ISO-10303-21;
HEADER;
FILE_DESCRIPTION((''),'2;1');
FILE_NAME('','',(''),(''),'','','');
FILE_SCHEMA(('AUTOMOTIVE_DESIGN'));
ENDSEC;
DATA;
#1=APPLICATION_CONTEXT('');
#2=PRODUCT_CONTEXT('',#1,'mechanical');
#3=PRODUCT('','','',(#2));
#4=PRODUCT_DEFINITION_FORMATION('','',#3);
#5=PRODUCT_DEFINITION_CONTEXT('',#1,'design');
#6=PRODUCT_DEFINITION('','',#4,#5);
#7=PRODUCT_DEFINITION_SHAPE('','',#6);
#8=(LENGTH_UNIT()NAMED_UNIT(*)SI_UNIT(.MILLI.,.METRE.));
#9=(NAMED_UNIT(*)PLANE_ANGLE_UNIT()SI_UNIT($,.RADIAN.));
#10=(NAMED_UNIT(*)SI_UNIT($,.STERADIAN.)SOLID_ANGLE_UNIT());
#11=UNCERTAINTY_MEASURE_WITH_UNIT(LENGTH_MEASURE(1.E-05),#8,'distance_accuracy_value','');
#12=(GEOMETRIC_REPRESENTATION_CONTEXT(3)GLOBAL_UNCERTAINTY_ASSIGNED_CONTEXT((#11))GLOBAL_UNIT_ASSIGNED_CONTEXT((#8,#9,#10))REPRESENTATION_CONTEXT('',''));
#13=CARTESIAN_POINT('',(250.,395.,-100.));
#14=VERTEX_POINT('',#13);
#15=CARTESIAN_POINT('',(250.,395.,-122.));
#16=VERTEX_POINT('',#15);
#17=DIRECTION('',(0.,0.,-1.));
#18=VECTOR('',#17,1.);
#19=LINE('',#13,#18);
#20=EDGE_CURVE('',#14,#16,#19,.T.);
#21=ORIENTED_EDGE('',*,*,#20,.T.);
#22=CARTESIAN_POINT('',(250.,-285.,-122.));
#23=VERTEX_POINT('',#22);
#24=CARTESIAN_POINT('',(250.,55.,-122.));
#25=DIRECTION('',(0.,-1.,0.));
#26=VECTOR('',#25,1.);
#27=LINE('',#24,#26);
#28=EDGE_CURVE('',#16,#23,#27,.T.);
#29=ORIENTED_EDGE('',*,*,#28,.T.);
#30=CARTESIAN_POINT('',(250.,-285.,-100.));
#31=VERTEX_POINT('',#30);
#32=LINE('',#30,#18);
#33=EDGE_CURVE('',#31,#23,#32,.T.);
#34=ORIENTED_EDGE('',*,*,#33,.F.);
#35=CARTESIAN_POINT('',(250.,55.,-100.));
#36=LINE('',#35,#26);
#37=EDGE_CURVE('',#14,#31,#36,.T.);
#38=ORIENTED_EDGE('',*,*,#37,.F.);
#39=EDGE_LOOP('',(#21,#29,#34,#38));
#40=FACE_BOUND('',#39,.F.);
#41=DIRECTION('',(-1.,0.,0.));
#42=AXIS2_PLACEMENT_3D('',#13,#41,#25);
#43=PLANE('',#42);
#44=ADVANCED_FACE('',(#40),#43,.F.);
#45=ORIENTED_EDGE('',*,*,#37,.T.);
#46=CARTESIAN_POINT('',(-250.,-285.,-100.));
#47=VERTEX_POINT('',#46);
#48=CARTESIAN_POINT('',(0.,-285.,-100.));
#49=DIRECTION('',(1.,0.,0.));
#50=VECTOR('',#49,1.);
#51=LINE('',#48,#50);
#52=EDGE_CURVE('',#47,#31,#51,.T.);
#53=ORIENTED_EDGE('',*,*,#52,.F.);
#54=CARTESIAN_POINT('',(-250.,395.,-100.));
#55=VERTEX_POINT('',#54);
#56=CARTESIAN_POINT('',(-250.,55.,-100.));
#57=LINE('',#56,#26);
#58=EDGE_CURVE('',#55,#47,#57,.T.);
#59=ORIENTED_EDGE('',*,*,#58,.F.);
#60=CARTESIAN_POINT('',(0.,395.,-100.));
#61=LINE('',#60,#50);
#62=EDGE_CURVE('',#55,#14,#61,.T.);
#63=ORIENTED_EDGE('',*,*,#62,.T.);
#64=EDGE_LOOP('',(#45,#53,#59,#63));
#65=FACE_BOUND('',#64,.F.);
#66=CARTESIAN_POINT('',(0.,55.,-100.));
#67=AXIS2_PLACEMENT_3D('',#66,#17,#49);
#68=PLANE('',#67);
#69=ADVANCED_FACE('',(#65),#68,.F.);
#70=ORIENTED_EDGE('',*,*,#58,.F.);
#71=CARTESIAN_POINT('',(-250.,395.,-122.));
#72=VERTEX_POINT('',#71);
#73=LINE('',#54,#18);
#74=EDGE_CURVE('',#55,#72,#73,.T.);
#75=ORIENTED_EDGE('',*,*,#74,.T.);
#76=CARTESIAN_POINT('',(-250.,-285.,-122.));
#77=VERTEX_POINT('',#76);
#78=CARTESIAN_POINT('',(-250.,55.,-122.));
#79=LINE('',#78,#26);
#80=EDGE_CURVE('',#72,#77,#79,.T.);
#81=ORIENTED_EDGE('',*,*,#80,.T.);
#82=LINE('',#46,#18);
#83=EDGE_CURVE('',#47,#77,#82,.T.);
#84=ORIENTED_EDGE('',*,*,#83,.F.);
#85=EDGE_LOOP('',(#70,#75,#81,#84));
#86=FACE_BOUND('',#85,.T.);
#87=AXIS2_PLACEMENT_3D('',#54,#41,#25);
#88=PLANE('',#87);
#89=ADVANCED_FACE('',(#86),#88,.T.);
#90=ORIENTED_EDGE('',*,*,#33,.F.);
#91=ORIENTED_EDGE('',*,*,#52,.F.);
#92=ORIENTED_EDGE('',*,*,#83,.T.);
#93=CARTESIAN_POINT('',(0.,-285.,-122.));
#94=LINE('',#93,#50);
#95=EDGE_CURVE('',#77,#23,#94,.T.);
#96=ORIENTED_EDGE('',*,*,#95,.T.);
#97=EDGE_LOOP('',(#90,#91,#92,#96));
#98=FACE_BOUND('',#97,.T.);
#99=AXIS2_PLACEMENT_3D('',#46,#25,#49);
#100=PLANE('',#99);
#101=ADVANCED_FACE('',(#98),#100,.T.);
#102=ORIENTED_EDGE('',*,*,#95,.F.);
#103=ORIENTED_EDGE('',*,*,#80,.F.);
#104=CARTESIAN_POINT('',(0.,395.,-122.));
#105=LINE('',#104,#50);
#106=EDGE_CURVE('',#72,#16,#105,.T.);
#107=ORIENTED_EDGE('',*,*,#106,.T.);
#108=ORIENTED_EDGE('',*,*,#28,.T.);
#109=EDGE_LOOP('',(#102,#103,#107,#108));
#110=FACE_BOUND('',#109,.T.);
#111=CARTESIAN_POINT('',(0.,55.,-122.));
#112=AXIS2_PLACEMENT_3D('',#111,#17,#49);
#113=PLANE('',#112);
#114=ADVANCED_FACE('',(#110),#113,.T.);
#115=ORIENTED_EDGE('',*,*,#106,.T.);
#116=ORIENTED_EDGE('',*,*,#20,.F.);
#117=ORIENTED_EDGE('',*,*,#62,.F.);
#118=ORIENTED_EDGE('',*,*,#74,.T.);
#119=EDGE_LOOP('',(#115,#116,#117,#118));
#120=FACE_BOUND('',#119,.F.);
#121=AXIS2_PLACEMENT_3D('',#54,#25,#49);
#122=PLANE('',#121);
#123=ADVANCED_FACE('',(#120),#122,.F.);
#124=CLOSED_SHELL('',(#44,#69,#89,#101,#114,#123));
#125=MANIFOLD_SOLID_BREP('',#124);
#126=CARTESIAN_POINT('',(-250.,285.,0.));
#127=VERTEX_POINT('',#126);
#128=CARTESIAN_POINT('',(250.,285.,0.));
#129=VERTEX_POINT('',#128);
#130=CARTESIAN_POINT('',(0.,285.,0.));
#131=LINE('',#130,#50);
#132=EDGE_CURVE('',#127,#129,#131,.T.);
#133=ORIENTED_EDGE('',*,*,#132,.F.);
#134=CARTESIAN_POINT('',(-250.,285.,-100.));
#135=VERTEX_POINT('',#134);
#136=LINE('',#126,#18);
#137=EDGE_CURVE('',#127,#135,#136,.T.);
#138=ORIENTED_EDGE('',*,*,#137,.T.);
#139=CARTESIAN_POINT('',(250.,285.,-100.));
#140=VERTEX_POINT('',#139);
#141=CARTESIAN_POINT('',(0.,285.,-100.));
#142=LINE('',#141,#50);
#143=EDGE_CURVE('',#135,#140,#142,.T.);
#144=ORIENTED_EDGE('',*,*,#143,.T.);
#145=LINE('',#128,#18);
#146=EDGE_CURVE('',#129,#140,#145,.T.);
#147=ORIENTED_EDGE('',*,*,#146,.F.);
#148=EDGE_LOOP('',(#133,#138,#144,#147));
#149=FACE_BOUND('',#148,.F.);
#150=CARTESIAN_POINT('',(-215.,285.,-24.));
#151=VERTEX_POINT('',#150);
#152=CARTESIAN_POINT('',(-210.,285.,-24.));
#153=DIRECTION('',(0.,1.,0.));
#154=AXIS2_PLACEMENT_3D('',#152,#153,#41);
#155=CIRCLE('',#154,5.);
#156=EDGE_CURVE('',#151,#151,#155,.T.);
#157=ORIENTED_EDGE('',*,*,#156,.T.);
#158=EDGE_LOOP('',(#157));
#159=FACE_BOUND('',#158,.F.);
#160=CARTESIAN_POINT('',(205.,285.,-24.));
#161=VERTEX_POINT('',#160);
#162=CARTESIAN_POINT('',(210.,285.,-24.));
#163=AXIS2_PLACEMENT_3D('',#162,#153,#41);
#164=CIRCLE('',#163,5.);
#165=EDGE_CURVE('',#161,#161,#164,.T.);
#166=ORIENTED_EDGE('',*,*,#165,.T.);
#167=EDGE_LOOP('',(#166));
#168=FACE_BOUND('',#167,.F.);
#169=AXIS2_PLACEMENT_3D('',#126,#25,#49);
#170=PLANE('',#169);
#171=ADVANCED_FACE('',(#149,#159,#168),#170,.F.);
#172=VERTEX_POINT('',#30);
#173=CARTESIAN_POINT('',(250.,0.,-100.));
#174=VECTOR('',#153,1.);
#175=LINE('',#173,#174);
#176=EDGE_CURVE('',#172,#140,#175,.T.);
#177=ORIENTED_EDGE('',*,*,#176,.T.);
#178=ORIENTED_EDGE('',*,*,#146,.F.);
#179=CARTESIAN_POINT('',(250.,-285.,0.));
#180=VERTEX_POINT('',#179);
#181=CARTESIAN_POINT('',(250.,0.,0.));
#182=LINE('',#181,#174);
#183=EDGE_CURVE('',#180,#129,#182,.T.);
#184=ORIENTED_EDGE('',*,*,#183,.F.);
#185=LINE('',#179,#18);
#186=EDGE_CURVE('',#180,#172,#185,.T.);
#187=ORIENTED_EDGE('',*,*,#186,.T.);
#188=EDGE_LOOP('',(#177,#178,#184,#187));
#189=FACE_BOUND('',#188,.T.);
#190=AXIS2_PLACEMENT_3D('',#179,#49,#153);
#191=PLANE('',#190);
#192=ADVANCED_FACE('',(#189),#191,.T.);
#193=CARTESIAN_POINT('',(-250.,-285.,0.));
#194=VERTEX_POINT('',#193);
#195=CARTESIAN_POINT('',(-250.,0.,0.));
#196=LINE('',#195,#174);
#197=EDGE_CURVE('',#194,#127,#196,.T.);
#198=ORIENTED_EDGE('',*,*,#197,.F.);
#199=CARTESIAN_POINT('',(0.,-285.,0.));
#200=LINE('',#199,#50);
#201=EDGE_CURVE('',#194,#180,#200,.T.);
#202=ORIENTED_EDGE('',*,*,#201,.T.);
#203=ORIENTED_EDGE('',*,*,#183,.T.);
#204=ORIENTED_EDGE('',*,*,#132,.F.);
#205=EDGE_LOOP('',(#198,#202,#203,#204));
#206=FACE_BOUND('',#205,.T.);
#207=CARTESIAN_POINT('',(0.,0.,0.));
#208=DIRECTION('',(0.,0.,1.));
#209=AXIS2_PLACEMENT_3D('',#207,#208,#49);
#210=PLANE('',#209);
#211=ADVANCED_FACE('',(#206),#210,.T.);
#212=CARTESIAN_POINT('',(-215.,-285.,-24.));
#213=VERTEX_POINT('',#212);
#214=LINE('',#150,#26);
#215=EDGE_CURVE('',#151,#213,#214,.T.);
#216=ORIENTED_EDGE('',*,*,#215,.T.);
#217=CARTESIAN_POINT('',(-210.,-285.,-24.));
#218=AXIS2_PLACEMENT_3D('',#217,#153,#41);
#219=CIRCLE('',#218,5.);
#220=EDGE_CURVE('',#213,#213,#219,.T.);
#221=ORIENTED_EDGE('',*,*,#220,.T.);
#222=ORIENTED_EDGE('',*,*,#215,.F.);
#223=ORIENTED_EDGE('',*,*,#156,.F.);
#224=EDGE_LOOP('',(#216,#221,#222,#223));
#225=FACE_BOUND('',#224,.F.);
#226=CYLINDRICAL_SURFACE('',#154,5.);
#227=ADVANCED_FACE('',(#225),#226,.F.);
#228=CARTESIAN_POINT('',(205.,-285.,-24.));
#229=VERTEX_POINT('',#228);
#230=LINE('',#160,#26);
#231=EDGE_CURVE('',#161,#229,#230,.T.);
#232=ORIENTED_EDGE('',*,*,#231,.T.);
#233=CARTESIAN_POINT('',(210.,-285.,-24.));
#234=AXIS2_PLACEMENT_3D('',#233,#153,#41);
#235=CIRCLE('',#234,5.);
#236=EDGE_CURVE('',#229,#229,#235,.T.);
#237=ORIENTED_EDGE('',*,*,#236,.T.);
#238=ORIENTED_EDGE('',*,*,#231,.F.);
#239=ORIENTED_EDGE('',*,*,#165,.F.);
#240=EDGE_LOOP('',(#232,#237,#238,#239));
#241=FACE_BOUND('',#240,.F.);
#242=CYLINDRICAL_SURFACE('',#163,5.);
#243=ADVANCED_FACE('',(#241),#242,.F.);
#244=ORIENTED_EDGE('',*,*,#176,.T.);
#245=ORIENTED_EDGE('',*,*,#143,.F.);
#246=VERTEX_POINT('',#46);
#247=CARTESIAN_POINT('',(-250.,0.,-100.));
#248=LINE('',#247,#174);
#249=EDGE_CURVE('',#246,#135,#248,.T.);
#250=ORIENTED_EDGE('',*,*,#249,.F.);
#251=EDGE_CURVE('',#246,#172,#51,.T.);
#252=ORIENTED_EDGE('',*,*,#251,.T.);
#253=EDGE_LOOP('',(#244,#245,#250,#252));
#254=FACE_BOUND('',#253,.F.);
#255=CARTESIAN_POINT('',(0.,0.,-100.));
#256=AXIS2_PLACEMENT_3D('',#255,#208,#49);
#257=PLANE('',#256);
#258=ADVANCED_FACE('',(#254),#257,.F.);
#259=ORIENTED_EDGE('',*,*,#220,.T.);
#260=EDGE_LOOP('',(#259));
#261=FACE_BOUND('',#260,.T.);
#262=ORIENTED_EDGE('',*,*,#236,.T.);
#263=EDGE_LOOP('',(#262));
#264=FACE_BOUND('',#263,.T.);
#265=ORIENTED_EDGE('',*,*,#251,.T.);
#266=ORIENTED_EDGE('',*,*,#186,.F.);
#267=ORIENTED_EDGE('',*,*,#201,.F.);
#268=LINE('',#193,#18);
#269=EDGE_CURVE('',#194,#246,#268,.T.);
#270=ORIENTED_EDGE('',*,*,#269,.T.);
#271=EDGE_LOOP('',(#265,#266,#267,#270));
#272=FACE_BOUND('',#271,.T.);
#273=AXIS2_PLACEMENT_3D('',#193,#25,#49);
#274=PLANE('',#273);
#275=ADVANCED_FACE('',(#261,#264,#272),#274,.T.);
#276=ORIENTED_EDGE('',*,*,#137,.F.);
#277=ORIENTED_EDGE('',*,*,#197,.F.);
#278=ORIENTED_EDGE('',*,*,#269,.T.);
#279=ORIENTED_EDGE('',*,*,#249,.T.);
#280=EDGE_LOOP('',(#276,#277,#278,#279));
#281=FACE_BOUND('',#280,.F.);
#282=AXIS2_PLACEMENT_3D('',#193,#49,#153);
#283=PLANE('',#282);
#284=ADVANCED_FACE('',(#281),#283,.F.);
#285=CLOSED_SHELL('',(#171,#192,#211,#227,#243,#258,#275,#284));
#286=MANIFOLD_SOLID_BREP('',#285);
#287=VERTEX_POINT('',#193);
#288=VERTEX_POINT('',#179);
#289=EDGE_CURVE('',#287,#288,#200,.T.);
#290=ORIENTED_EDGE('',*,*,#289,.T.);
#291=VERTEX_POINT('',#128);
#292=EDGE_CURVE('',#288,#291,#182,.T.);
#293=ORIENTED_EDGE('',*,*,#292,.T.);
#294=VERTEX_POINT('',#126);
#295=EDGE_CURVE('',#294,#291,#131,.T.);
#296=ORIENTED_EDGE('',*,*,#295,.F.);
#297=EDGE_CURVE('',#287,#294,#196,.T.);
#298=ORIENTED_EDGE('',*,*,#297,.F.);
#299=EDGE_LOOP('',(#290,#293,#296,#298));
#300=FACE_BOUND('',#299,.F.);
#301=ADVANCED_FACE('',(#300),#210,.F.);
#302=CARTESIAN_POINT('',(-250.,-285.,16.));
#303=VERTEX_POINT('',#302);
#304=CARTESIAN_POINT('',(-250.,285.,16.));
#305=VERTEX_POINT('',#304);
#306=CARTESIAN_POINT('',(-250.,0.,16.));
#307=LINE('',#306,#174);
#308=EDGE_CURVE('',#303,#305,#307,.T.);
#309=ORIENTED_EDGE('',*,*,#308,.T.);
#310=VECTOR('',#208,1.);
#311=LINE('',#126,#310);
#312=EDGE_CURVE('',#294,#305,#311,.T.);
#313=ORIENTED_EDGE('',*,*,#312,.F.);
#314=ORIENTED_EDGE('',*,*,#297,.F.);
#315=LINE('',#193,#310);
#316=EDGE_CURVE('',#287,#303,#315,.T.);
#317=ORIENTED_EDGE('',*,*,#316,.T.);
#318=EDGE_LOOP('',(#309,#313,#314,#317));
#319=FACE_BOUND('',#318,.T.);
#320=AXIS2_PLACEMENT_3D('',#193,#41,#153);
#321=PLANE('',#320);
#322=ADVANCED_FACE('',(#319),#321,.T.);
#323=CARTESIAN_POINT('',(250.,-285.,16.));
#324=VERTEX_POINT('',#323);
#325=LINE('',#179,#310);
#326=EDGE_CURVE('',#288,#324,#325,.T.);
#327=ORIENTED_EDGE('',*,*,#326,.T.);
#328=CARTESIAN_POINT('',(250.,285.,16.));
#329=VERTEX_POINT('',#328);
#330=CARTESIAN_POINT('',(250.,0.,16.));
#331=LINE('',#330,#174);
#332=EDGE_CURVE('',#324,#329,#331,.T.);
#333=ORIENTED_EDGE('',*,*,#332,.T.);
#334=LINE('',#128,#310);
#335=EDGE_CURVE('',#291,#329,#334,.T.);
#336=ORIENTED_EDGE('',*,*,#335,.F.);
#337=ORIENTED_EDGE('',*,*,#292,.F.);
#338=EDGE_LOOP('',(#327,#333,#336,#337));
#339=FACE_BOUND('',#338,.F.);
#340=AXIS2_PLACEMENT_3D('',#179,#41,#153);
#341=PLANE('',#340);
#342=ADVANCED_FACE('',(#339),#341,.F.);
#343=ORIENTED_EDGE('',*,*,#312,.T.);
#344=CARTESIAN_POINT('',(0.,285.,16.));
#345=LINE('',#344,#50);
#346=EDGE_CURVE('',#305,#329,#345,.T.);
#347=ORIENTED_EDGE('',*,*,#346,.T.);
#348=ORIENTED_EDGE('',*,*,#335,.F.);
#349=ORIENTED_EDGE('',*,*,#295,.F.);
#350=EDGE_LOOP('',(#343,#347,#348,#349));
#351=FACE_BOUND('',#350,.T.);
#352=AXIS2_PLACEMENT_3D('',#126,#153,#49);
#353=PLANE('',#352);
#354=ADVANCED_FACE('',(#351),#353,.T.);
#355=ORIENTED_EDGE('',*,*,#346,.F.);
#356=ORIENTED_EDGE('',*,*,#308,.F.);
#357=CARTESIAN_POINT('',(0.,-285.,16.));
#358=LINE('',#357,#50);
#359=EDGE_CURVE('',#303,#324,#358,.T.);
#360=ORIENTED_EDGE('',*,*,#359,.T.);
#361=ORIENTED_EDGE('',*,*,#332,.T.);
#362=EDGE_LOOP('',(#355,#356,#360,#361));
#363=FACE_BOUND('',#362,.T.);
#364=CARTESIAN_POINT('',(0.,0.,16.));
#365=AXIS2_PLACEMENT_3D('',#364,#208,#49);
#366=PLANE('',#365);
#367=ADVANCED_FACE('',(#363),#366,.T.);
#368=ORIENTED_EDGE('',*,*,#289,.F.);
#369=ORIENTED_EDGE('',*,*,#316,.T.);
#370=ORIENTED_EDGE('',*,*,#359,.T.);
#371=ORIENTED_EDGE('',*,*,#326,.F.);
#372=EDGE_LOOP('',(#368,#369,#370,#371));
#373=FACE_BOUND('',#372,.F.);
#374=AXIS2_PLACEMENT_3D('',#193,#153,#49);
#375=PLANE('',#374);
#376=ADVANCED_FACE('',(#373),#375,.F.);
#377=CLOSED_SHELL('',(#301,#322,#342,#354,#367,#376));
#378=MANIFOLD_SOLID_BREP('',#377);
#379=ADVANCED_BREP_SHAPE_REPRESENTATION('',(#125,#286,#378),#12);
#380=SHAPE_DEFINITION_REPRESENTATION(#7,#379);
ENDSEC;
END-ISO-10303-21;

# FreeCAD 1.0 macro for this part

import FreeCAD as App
import Part
import Sketcher

V = App.Vector
Q = App.Units.Quantity


def add_polygon(sketch, points):
    """Adds a closed chain of lines whose ends are joined by coincident constraints."""
    first, n = sketch.GeometryCount, len(points)
    for a, b in zip(points, points[1:] + points[:1]):
        sketch.addGeometry(Part.LineSegment(App.Vector(*a, 0), App.Vector(*b, 0)), False)
    for i in range(n):
        sketch.addConstraint(Sketcher.Constraint("Coincident", first + i, 2, first + (i + 1) % n, 1))

doc = App.newDocument("Part")
params = doc.addObject("Spreadsheet::Sheet", "Params")
for row, (alias, value) in enumerate([
    ("sketch1_width", "500 mm"),
    ("sketch1_height", "570 mm"),
    ("pad1_length", "16 mm"),
    ("sketch2_width", "500 mm"),
    ("sketch2_height", "570 mm"),
    ("pad2_length", "100 mm"),
    ("sketch3_diameter", "10 mm"),
    ("sketch4_width", "500 mm"),
    ("sketch4_height", "680 mm"),
    ("pad3_length", "22 mm"),
], start=1):
    params.set(f"A{row}", alias)
    params.set(f"B{row}", "=" + value)
    params.setAlias(f"B{row}", alias)

body = doc.addObject("PartDesign::Body", "Body")

# Sketch on XY plane
sketch1 = doc.addObject("Sketcher::SketchObject", "Sketch")
body.addObject(sketch1)
sketch1.AttachmentSupport = (doc.XY_Plane, [""])
sketch1.MapMode = "FlatFace"
add_polygon(sketch1, [(-250, 285), (-250, -285), (250, -285), (250, 285)])  # lines 0-3
sketch1.addConstraint(Sketcher.Constraint("Vertical", 0))
sketch1.addConstraint(Sketcher.Constraint("Horizontal", 1))
sketch1.addConstraint(Sketcher.Constraint("Vertical", 2))
sketch1.addConstraint(Sketcher.Constraint("Horizontal", 3))
sketch1.addConstraint(Sketcher.Constraint("Symmetric", 0, 2, 2, 2, -1, 1))
sketch1.addConstraint(Sketcher.Constraint("DistanceX", 1, 1, 1, 2, Q("500 mm")))
sketch1.addConstraint(Sketcher.Constraint("DistanceY", 0, 2, 0, 1, Q("570 mm")))
sketch1.setExpression("Constraints[9]", "Params.sketch1_width")
sketch1.setExpression("Constraints[10]", "Params.sketch1_height")
pad1 = doc.addObject("PartDesign::Pad", "Pad")
body.addObject(pad1)
pad1.Profile = sketch1
pad1.setExpression("Length", "Params.pad1_length")
body2 = doc.addObject("PartDesign::Body", "Body001")

# Sketch on XY plane
sketch2 = doc.addObject("Sketcher::SketchObject", "Sketch001")
body2.addObject(sketch2)
sketch2.AttachmentSupport = (doc.getObject("XY_Plane001"), [""])
sketch2.MapMode = "FlatFace"
add_polygon(sketch2, [(-250, 285), (-250, -285), (250, -285), (250, 285)])  # lines 0-3
sketch2.addConstraint(Sketcher.Constraint("Vertical", 0))
sketch2.addConstraint(Sketcher.Constraint("Horizontal", 1))
sketch2.addConstraint(Sketcher.Constraint("Vertical", 2))
sketch2.addConstraint(Sketcher.Constraint("Horizontal", 3))
sketch2.addConstraint(Sketcher.Constraint("Symmetric", 0, 2, 2, 2, -1, 1))
sketch2.addConstraint(Sketcher.Constraint("DistanceX", 1, 1, 1, 2, Q("500 mm")))
sketch2.addConstraint(Sketcher.Constraint("DistanceY", 0, 2, 0, 1, Q("570 mm")))
sketch2.setExpression("Constraints[9]", "Params.sketch2_width")
sketch2.setExpression("Constraints[10]", "Params.sketch2_height")
pad2 = doc.addObject("PartDesign::Pad", "Pad001")
body2.addObject(pad2)
pad2.Profile = sketch2
pad2.setExpression("Length", "Params.pad2_length")
pad2.Reversed = True

# Sketch on XZ plane
sketch3 = doc.addObject("Sketcher::SketchObject", "Sketch002")
body2.addObject(sketch3)
sketch3.AttachmentSupport = (doc.getObject("XZ_Plane001"), [""])
sketch3.MapMode = "FlatFace"
sketch3.AttachmentOffset = App.Placement(V(0, 0, -285), App.Rotation())
sketch3.addGeometry(Part.Circle(V(210, -24, 0), V(0, 0, 1), 5), False)
sketch3.addGeometry(Part.Circle(V(-210, -24, 0), V(0, 0, 1), 5), False)
sketch3.addConstraint(Sketcher.Constraint("Equal", 0, 1))
sketch3.addConstraint(Sketcher.Constraint("Symmetric", 0, 3, 1, 3, -2))
sketch3.addConstraint(Sketcher.Constraint("Diameter", 0, Q("10 mm")))
sketch3.addConstraint(Sketcher.Constraint("DistanceX", -1, 1, 0, 3, Q("210 mm")))
sketch3.addConstraint(Sketcher.Constraint("DistanceY", 0, 3, -1, 1, Q("24 mm")))
sketch3.setExpression("Constraints[2]", "Params.sketch3_diameter")
pocket1 = doc.addObject("PartDesign::Pocket", "Pocket")
body2.addObject(pocket1)
pocket1.Profile = sketch3
pocket1.Type = "ThroughAll"
pocket1.Reversed = True
body3 = doc.addObject("PartDesign::Body", "Body002")

# Sketch on XY plane
sketch4 = doc.addObject("Sketcher::SketchObject", "Sketch003")
body3.addObject(sketch4)
sketch4.AttachmentSupport = (doc.getObject("XY_Plane002"), [""])
sketch4.MapMode = "FlatFace"
sketch4.AttachmentOffset = App.Placement(V(0, 0, -100), App.Rotation())
add_polygon(sketch4, [(-250, -285), (-250, 395), (250, 395), (250, -285)])  # lines 0-3
sketch4.addConstraint(Sketcher.Constraint("Vertical", 0))
sketch4.addConstraint(Sketcher.Constraint("Horizontal", 1))
sketch4.addConstraint(Sketcher.Constraint("Vertical", 2))
sketch4.addConstraint(Sketcher.Constraint("Horizontal", 3))
sketch4.addConstraint(Sketcher.Constraint("DistanceX", 1, 1, 1, 2, Q("500 mm")))
sketch4.addConstraint(Sketcher.Constraint("DistanceY", 0, 1, 0, 2, Q("680 mm")))
sketch4.addConstraint(Sketcher.Constraint("DistanceX", 0, 2, -1, 1, Q("250 mm")))
sketch4.addConstraint(Sketcher.Constraint("DistanceY", -1, 1, 0, 2, Q("395 mm")))
sketch4.setExpression("Constraints[8]", "Params.sketch4_width")
sketch4.setExpression("Constraints[9]", "Params.sketch4_height")
pad3 = doc.addObject("PartDesign::Pad", "Pad002")
body3.addObject(pad3)
pad3.Profile = sketch4
pad3.setExpression("Length", "Params.pad3_length")
pad3.Reversed = True

doc.recompute()
